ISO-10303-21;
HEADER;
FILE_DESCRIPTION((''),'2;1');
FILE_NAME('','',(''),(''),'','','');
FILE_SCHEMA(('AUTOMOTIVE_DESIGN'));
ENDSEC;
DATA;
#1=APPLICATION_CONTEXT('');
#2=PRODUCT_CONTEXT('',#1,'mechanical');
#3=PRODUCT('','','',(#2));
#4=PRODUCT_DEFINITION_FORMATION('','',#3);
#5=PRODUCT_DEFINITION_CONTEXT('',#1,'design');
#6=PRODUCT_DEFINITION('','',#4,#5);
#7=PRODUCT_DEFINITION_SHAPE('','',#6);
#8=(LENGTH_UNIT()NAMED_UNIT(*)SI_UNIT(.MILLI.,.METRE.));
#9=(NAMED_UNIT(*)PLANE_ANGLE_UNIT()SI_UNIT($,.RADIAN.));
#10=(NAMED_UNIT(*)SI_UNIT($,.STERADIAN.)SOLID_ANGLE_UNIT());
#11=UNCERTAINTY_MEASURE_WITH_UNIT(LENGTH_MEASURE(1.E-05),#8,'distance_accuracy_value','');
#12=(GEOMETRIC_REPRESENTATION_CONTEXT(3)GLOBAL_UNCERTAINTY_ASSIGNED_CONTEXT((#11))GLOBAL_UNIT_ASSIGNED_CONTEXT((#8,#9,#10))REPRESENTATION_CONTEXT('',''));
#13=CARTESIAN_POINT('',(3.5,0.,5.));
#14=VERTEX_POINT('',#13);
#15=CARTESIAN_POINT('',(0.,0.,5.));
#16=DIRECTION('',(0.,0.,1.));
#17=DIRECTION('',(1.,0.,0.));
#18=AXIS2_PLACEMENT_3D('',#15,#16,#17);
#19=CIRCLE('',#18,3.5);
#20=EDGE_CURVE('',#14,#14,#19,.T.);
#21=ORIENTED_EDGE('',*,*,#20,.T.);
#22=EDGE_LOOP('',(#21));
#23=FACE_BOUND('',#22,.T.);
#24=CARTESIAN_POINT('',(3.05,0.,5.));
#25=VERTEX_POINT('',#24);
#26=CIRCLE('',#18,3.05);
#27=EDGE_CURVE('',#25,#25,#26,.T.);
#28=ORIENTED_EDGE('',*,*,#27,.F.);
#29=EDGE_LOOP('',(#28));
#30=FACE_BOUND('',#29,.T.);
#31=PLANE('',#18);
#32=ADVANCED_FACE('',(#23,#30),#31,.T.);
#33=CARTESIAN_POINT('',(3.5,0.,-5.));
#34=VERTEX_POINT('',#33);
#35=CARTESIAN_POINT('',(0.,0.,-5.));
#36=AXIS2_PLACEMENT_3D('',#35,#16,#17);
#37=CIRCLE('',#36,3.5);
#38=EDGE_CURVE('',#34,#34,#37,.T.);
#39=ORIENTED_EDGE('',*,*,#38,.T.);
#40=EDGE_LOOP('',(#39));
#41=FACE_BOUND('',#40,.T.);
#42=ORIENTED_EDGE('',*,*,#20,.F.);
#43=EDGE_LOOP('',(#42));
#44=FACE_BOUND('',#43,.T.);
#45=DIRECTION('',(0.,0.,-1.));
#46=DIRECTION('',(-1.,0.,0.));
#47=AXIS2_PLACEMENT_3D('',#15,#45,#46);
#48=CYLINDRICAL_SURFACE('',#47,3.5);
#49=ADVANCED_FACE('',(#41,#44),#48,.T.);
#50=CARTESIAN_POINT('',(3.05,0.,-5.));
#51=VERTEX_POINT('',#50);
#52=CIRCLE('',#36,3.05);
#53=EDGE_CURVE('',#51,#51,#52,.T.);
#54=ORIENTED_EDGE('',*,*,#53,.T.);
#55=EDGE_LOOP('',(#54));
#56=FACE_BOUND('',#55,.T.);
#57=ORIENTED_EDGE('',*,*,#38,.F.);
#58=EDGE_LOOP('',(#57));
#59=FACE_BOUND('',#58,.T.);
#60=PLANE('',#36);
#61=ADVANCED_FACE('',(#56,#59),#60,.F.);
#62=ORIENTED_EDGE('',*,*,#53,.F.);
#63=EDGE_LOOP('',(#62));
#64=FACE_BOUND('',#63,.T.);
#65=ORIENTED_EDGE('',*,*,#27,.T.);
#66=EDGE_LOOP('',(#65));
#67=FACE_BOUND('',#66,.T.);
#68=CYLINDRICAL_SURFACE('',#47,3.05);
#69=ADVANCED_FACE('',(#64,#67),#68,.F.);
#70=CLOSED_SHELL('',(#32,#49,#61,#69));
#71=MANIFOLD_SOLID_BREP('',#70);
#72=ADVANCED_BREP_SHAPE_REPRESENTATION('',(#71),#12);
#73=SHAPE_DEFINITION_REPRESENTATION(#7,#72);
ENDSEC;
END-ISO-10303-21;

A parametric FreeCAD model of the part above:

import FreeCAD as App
import Part
import Sketcher

V = App.Vector

doc = App.newDocument("Part")
body = doc.addObject("PartDesign::Body", "Body")

# Sketch on XY plane
sketch1 = body.newObject("Sketcher::SketchObject", "Sketch")
sketch1.AttachmentSupport = (doc.getObject("XY_Plane"), [""])
sketch1.MapMode = "FlatFace"
sketch1.addGeometry(Part.Circle(V(0, 0, 0), V(0, 0, 1), 3.5), False)
sketch1.addGeometry(Part.Circle(V(0, 0, 0), V(0, 0, 1), 3), False)
sketch1.addConstraint(Sketcher.Constraint("Coincident", 0, 3, -1, 1))
sketch1.addConstraint(Sketcher.Constraint("Coincident", 1, 3, -1, 1))
sketch1.addConstraint(Sketcher.Constraint("Diameter", 0, 7.0))
sketch1.addConstraint(Sketcher.Constraint("Diameter", 1, 6.1))
pad1 = body.newObject("PartDesign::Pad", "Pad")
pad1.Profile = sketch1
pad1.Type = "TwoLengths"
pad1.Length = 5
pad1.Length2 = 5

doc.recompute()
